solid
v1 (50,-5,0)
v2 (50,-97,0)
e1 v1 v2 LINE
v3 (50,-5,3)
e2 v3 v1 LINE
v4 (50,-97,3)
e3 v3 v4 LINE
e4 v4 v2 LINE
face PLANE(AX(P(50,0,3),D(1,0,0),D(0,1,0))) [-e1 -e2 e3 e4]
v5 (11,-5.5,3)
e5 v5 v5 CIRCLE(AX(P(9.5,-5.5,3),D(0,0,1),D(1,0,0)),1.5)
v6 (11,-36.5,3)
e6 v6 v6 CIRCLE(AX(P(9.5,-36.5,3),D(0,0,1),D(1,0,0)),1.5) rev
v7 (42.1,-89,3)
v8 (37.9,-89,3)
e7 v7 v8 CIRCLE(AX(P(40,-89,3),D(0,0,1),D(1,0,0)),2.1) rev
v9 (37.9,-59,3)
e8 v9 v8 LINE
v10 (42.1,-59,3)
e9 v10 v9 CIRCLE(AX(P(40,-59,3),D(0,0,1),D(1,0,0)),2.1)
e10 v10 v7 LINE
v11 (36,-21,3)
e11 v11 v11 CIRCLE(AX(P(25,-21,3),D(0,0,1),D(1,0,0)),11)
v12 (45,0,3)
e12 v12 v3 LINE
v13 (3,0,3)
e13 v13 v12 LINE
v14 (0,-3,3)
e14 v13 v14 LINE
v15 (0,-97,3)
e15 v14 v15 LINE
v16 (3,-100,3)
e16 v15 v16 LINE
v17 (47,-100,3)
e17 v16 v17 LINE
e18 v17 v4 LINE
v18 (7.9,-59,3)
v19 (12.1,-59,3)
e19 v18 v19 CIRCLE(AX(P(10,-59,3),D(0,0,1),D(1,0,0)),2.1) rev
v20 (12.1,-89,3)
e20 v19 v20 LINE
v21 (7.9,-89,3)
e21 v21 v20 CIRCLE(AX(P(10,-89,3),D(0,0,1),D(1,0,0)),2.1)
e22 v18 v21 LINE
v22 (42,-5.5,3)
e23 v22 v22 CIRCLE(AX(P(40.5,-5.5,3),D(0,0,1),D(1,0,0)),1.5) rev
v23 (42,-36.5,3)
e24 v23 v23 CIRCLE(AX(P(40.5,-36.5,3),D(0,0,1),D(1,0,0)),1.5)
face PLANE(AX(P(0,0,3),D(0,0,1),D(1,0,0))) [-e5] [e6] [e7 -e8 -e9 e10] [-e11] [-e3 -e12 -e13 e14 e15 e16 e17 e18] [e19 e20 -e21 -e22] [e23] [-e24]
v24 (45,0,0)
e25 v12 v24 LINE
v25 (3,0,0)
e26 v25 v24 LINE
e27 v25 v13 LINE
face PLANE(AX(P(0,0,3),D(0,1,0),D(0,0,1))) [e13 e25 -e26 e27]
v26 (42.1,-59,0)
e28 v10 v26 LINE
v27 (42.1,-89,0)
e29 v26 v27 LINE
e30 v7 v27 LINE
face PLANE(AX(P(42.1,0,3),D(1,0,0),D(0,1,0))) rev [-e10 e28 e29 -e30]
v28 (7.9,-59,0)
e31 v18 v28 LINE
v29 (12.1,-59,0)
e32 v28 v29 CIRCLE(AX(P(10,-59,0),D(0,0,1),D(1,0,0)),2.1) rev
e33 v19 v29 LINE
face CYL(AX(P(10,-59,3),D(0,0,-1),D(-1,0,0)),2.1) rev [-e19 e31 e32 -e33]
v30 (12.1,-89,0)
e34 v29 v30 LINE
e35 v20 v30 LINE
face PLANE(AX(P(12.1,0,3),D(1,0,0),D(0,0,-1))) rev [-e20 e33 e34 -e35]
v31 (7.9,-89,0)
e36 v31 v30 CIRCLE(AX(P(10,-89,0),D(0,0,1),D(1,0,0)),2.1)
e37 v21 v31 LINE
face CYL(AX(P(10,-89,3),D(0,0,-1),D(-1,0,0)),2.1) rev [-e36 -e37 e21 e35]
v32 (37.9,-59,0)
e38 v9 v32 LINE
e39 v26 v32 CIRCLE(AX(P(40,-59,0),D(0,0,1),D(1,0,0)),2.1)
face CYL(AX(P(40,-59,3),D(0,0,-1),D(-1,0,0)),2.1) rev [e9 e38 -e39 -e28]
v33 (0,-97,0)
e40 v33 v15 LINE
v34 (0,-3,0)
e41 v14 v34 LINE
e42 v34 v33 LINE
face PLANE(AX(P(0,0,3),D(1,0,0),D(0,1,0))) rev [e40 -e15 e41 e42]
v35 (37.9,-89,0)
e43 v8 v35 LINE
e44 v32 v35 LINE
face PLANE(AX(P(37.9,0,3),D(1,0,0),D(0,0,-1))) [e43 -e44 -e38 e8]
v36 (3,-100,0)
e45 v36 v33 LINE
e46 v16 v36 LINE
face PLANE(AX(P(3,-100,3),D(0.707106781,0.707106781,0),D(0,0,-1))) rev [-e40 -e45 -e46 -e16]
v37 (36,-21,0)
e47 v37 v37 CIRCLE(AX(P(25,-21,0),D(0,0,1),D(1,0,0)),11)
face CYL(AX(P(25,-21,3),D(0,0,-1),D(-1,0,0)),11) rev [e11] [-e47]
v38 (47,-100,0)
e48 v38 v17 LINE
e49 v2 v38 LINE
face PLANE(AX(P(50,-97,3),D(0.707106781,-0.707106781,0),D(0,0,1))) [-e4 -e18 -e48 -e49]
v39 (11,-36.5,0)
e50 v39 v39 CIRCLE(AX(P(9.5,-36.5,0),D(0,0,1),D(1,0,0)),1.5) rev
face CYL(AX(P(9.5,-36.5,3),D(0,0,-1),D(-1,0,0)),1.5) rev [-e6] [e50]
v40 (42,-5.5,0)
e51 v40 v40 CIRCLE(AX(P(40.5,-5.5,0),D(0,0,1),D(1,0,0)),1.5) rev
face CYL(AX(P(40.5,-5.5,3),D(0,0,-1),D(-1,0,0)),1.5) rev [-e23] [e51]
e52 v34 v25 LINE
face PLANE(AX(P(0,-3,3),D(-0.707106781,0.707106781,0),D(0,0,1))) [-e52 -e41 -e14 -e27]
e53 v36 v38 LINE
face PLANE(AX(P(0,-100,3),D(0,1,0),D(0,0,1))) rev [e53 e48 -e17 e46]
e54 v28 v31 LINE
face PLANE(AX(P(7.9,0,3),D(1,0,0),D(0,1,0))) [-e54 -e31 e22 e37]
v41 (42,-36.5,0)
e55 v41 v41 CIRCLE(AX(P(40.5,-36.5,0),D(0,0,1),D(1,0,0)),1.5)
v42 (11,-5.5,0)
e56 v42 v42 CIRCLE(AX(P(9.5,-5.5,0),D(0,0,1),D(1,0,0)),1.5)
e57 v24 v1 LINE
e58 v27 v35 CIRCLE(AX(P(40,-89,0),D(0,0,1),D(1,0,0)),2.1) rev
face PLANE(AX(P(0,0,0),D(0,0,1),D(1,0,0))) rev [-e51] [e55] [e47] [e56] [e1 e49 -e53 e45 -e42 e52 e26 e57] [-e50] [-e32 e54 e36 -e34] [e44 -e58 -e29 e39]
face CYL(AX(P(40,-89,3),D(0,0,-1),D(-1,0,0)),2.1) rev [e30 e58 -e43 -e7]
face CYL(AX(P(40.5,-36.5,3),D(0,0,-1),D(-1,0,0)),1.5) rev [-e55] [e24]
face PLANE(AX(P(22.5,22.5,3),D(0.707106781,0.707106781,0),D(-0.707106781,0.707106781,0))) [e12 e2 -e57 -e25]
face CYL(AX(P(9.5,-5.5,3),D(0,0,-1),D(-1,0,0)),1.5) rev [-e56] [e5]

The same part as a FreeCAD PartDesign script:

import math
import FreeCAD as App
import Part
import Sketcher

V = App.Vector


def edges_at(feature, points):
    """Names of the edges that pass closest to the given points."""
    edges = feature.Shape.Edges
    near = lambda p: min(range(len(edges)), key=lambda i: edges[i].distToShape(Part.Vertex(*p))[0])
    return sorted({f"Edge{near(p) + 1}" for p in points})


def add_polygon(sketch, points):
    """Adds a closed chain of lines whose ends are joined by coincident constraints."""
    first, n = sketch.GeometryCount, len(points)
    for a, b in zip(points, points[1:] + points[:1]):
        sketch.addGeometry(Part.LineSegment(App.Vector(*a, 0), App.Vector(*b, 0)), False)
    for i in range(n):
        sketch.addConstraint(Sketcher.Constraint("Coincident", first + i, 2, first + (i + 1) % n, 1))

doc = App.newDocument("Part")
params = doc.addObject("Spreadsheet::Sheet", "Params")
for row, (alias, value) in enumerate([
    ("sketch1_diameter", "3 mm"),
    ("sketch1_diameter2", "22 mm"),
    ("sketch1_radius", "2.1 mm"),
    ("sketch1_width", "45 mm"),
    ("sketch1_width2", "50 mm"),
    ("pad1_length", "3 mm"),
    ("chamfer_size", "3 mm"),
], start=1):
    params.set(f"A{row}", alias)
    params.set(f"B{row}", "=" + value)
    params.setAlias(f"B{row}", alias)

body = doc.addObject("PartDesign::Body", "Body")

# Sketch on XY plane
sketch1 = doc.addObject("Sketcher::SketchObject", "Sketch")
body.addObject(sketch1)
sketch1.AttachmentSupport = (doc.XY_Plane, [""])
sketch1.MapMode = "FlatFace"
add_polygon(sketch1, [(50, -5), (45, 0), (0, 0), (0, -100), (50, -100)])  # lines 0-4
sketch1.addGeometry(Part.LineSegment(V(42.1, -59, 0), V(42.1, -89, 0)), False)  # 5
sketch1.addGeometry(Part.ArcOfCircle(Part.Circle(V(40, -89, 0), V(0, 0, 1), 2.1), math.radians(180), math.radians(360)), False)  # 6
sketch1.addGeometry(Part.LineSegment(V(37.9, -89, 0), V(37.9, -59, 0)), False)  # 7
sketch1.addGeometry(Part.ArcOfCircle(Part.Circle(V(40, -59, 0), V(0, 0, 1), 2.1), math.radians(0), math.radians(180)), False)  # 8
sketch1.addGeometry(Part.LineSegment(V(7.9, -89, 0), V(7.9, -59, 0)), False)  # 9
sketch1.addGeometry(Part.ArcOfCircle(Part.Circle(V(10, -59, 0), V(0, 0, 1), 2.1), math.radians(0), math.radians(180)), False)  # 10
sketch1.addGeometry(Part.LineSegment(V(12.1, -59, 0), V(12.1, -89, 0)), False)  # 11
sketch1.addGeometry(Part.ArcOfCircle(Part.Circle(V(10, -89, 0), V(0, 0, 1), 2.1), math.radians(180), math.radians(360)), False)  # 12
sketch1.addGeometry(Part.Circle(V(40.5, -36.5, 0), V(0, 0, 1), 1.5), False)  # 13
sketch1.addGeometry(Part.Circle(V(40.5, -5.5, 0), V(0, 0, 1), 1.5), False)  # 14
sketch1.addGeometry(Part.Circle(V(9.5, -36.5, 0), V(0, 0, 1), 1.5), False)  # 15
sketch1.addGeometry(Part.Circle(V(25, -21, 0), V(0, 0, 1), 11), False)  # 16
sketch1.addGeometry(Part.Circle(V(9.5, -5.5, 0), V(0, 0, 1), 1.5), False)  # 17
sketch1.addConstraint([
    Sketcher.Constraint("Tangent", 5, 2, 6, 2),
    Sketcher.Constraint("Tangent", 6, 1, 7, 1),
    Sketcher.Constraint("Tangent", 7, 2, 8, 2),
    Sketcher.Constraint("Tangent", 8, 1, 5, 1),
    Sketcher.Constraint("Tangent", 9, 2, 10, 2),
    Sketcher.Constraint("Tangent", 10, 1, 11, 1),
    Sketcher.Constraint("Tangent", 11, 2, 12, 2),
    Sketcher.Constraint("Tangent", 12, 1, 9, 1),
    Sketcher.Constraint("Horizontal", 1),
    Sketcher.Constraint("Vertical", 2),
    Sketcher.Constraint("Horizontal", 3),
    Sketcher.Constraint("Vertical", 4),
    Sketcher.Constraint("Vertical", 5),
    Sketcher.Constraint("Vertical", 7),
    Sketcher.Constraint("Vertical", 9),
    Sketcher.Constraint("Vertical", 11),
    Sketcher.Constraint("Coincident", 1, 2, -1, 1),
    Sketcher.Constraint("Equal", 8, 10),
    Sketcher.Constraint("Equal", 13, 14),
    Sketcher.Constraint("Equal", 14, 15),
    Sketcher.Constraint("Equal", 15, 17),
    Sketcher.Constraint("Horizontal", 8, 3, 10, 3),
    Sketcher.Constraint("Horizontal", 6, 3, 12, 3),
    Sketcher.Constraint("Horizontal", 13, 3, 15, 3),
    Sketcher.Constraint("Horizontal", 14, 3, 17, 3),
    Sketcher.Constraint("Vertical", 13, 3, 14, 3),
    Sketcher.Constraint("Vertical", 15, 3, 17, 3),
    Sketcher.Constraint("Diameter", 13, 3.0),
    Sketcher.Constraint("Diameter", 16, 22.0),
    Sketcher.Constraint("Radius", 6, 2.1),
    Sketcher.Constraint("DistanceX", 1, 2, 1, 1, 45.0),
    Sketcher.Constraint("DistanceX", 3, 1, 3, 2, 50.0),
    Sketcher.Constraint("DistanceY", 2, 2, 2, 1, 100.0),
    Sketcher.Constraint("DistanceY", 4, 1, 4, 2, 95.0),
    Sketcher.Constraint("DistanceY", 5, 2, 5, 1, 30.0),
    Sketcher.Constraint("DistanceX", -1, 1, 6, 3, 40.0),
    Sketcher.Constraint("DistanceY", 6, 3, -1, 1, 89.0),
    Sketcher.Constraint("DistanceX", -1, 1, 10, 3, 10.0),
    Sketcher.Constraint("DistanceX", -1, 1, 16, 3, 25.0),
    Sketcher.Constraint("DistanceY", 16, 3, -1, 1, 21.0),
    Sketcher.Constraint("DistanceY", 13, 3, 14, 3, 31.0),
    Sketcher.Constraint("DistanceX", 15, 3, 13, 3, 31.0),
    Sketcher.Constraint("DistanceX", -1, 1, 13, 3, 40.5),
    Sketcher.Constraint("DistanceY", 13, 3, -1, 1, 36.5),
])
sketch1.setExpression("Constraints[32]", "Params.sketch1_diameter")
sketch1.setExpression("Constraints[33]", "Params.sketch1_diameter2")
sketch1.setExpression("Constraints[34]", "Params.sketch1_radius")
sketch1.setExpression("Constraints[35]", "Params.sketch1_width")
sketch1.setExpression("Constraints[36]", "Params.sketch1_width2")
pad1 = doc.addObject("PartDesign::Pad", "Pad")
body.addObject(pad1)
pad1.Profile = sketch1
pad1.setExpression("Length", "Params.pad1_length")
doc.recompute()

chamfer = doc.addObject("PartDesign::Chamfer", "Chamfer")
body.addObject(chamfer)
chamfer.Base = (pad1, edges_at(pad1, [(50, -100, 1.5), (0, -100, 1.5), (0, 0, 1.5)]))
chamfer.setExpression("Size", "Params.chamfer_size")

doc.recompute()
